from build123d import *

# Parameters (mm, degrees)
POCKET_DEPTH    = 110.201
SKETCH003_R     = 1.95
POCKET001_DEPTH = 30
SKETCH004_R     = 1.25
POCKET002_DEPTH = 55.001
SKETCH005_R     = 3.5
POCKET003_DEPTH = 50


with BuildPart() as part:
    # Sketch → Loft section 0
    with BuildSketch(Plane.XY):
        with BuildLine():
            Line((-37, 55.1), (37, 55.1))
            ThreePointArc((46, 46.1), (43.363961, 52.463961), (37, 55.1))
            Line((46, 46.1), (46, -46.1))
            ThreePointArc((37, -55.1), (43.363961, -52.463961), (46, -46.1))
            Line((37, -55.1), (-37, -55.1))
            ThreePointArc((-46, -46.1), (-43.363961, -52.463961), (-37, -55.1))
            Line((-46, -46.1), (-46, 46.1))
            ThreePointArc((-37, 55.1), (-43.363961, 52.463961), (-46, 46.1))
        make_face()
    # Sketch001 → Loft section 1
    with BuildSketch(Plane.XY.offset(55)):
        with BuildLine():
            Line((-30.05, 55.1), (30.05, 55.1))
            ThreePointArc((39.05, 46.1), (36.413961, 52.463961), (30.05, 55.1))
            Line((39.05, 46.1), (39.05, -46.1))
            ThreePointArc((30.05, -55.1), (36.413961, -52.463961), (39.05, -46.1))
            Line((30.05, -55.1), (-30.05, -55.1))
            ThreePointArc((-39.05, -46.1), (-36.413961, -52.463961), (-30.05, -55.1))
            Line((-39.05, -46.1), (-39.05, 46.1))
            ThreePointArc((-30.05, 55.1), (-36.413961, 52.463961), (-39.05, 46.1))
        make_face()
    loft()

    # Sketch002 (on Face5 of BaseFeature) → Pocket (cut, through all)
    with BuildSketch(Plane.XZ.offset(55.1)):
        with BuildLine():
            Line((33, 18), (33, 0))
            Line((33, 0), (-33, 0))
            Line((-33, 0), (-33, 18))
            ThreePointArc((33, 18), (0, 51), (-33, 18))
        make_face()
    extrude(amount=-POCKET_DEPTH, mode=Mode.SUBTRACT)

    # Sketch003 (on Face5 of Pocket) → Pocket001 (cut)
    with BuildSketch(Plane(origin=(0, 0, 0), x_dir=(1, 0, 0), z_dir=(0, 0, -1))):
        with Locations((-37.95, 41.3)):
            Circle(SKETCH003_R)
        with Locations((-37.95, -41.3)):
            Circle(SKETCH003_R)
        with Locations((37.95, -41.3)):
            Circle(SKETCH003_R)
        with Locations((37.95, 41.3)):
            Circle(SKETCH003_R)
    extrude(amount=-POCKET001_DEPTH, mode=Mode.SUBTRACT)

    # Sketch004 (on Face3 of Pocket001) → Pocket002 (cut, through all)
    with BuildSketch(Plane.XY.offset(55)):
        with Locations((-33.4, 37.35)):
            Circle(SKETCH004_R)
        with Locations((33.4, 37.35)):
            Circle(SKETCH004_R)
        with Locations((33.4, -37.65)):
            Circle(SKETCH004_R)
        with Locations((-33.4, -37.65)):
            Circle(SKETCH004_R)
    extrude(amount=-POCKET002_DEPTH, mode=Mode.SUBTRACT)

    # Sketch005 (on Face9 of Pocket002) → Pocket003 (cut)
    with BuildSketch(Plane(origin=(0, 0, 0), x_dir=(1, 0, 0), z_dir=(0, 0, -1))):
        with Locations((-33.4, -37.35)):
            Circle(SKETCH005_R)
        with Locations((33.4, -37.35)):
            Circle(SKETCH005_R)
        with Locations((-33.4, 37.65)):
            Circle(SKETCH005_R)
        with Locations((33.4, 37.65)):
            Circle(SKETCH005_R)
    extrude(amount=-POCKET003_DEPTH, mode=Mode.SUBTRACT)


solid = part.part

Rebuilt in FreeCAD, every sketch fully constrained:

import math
import FreeCAD as App
import Part
import Sketcher
from FreeCAD import Vector
Q = App.Units.Quantity

doc = App.newDocument("Part")
body = doc.addObject("PartDesign::Body", "Body")

sketch1 = body.newObject("Sketcher::SketchObject", "Sketch")
sketch1.AttachmentSupport = (doc.getObject("XY_Plane"), [""])
sketch1.MapMode = "FlatFace"
sketch1.addGeometry(Part.LineSegment(Vector(37, 55, 0), Vector(-37, 55, 0)), False)
sketch1.addGeometry(Part.ArcOfCircle(Part.Circle(Vector(-37, 46, 0), Vector(0, 0, 1), 9), math.radians(90), math.radians(180)), False)
sketch1.addGeometry(Part.LineSegment(Vector(-46, 46, 0), Vector(-46, -46, 0)), False)
sketch1.addGeometry(Part.ArcOfCircle(Part.Circle(Vector(-37, -46, 0), Vector(0, 0, 1), 9), math.radians(-180), math.radians(-90)), False)
sketch1.addGeometry(Part.LineSegment(Vector(-37, -55, 0), Vector(37, -55, 0)), False)
sketch1.addGeometry(Part.ArcOfCircle(Part.Circle(Vector(37, -46, 0), Vector(0, 0, 1), 9), math.radians(-90), math.radians(0)), False)
sketch1.addGeometry(Part.LineSegment(Vector(46, -46, 0), Vector(46, 46, 0)), False)
sketch1.addGeometry(Part.ArcOfCircle(Part.Circle(Vector(37, 46, 0), Vector(0, 0, 1), 9), math.radians(0), math.radians(90)), False)
sketch1.addConstraint(Sketcher.Constraint("Tangent", 0, 2, 1, 1))
sketch1.addConstraint(Sketcher.Constraint("Tangent", 1, 2, 2, 1))
sketch1.addConstraint(Sketcher.Constraint("Tangent", 2, 2, 3, 1))
sketch1.addConstraint(Sketcher.Constraint("Tangent", 3, 2, 4, 1))
sketch1.addConstraint(Sketcher.Constraint("Tangent", 4, 2, 5, 1))
sketch1.addConstraint(Sketcher.Constraint("Tangent", 5, 2, 6, 1))
sketch1.addConstraint(Sketcher.Constraint("Tangent", 6, 2, 7, 1))
sketch1.addConstraint(Sketcher.Constraint("Tangent", 7, 2, 0, 1))
sketch1.addConstraint(Sketcher.Constraint("Horizontal", 0))
sketch1.addConstraint(Sketcher.Constraint("Vertical", 2))
sketch1.addConstraint(Sketcher.Constraint("Horizontal", 4))
sketch1.addConstraint(Sketcher.Constraint("Vertical", 6))
sketch1.addConstraint(Sketcher.Constraint("Equal", 1, 3))
sketch1.addConstraint(Sketcher.Constraint("Equal", 3, 5))
sketch1.addConstraint(Sketcher.Constraint("Equal", 5, 7))
sketch1.addConstraint(Sketcher.Constraint("Symmetric", 1, 3, 5, 3, -1, 1))
sketch1.addConstraint(Sketcher.Constraint("Radius", 1, Q("9 mm")))
sketch1.addConstraint(Sketcher.Constraint("DistanceX", 0, 2, 0, 1, Q("74 mm")))
sketch1.addConstraint(Sketcher.Constraint("DistanceY", 2, 2, 2, 1, Q("92.2 mm")))

sketch2 = body.newObject("Sketcher::SketchObject", "Sketch001")
sketch2.AttachmentSupport = (doc.getObject("XY_Plane"), [""])
sketch2.MapMode = "FlatFace"
sketch2.AttachmentOffset = App.Placement(Vector(0, 0, 55), App.Rotation())
sketch2.addGeometry(Part.LineSegment(Vector(30, 55, 0), Vector(-30, 55, 0)), False)
sketch2.addGeometry(Part.ArcOfCircle(Part.Circle(Vector(-30, 46, 0), Vector(0, 0, 1), 9), math.radians(90), math.radians(180)), False)
sketch2.addGeometry(Part.LineSegment(Vector(-39, 46, 0), Vector(-39, -46, 0)), False)
sketch2.addGeometry(Part.ArcOfCircle(Part.Circle(Vector(-30, -46, 0), Vector(0, 0, 1), 9), math.radians(-180), math.radians(-90)), False)
sketch2.addGeometry(Part.LineSegment(Vector(-30, -55, 0), Vector(30, -55, 0)), False)
sketch2.addGeometry(Part.ArcOfCircle(Part.Circle(Vector(30, -46, 0), Vector(0, 0, 1), 9), math.radians(-90), math.radians(0)), False)
sketch2.addGeometry(Part.LineSegment(Vector(39, -46, 0), Vector(39, 46, 0)), False)
sketch2.addGeometry(Part.ArcOfCircle(Part.Circle(Vector(30, 46, 0), Vector(0, 0, 1), 9), math.radians(0), math.radians(90)), False)
sketch2.addConstraint(Sketcher.Constraint("Tangent", 0, 2, 1, 1))
sketch2.addConstraint(Sketcher.Constraint("Tangent", 1, 2, 2, 1))
sketch2.addConstraint(Sketcher.Constraint("Tangent", 2, 2, 3, 1))
sketch2.addConstraint(Sketcher.Constraint("Tangent", 3, 2, 4, 1))
sketch2.addConstraint(Sketcher.Constraint("Tangent", 4, 2, 5, 1))
sketch2.addConstraint(Sketcher.Constraint("Tangent", 5, 2, 6, 1))
sketch2.addConstraint(Sketcher.Constraint("Tangent", 6, 2, 7, 1))
sketch2.addConstraint(Sketcher.Constraint("Tangent", 7, 2, 0, 1))
sketch2.addConstraint(Sketcher.Constraint("Horizontal", 0))
sketch2.addConstraint(Sketcher.Constraint("Vertical", 2))
sketch2.addConstraint(Sketcher.Constraint("Horizontal", 4))
sketch2.addConstraint(Sketcher.Constraint("Vertical", 6))
sketch2.addConstraint(Sketcher.Constraint("Equal", 1, 3))
sketch2.addConstraint(Sketcher.Constraint("Equal", 3, 5))
sketch2.addConstraint(Sketcher.Constraint("Equal", 5, 7))
sketch2.addConstraint(Sketcher.Constraint("Symmetric", 1, 3, 5, 3, -1, 1))
sketch2.addConstraint(Sketcher.Constraint("Radius", 1, Q("9 mm")))
sketch2.addConstraint(Sketcher.Constraint("DistanceX", 0, 2, 0, 1, Q("60.1 mm")))
sketch2.addConstraint(Sketcher.Constraint("DistanceY", 2, 2, 2, 1, Q("92.2 mm")))

additiveloft = body.newObject("PartDesign::AdditiveLoft", "AdditiveLoft")
additiveloft.Profile = sketch1
additiveloft.Sections = [sketch2]

sketch3 = body.newObject("Sketcher::SketchObject", "Sketch002")
sketch3.AttachmentSupport = (doc.getObject("XZ_Plane"), [""])
sketch3.MapMode = "FlatFace"
sketch3.AttachmentOffset = App.Placement(Vector(0, 0, 55.1), App.Rotation())
sketch3.addGeometry(Part.LineSegment(Vector(33, 0, 0), Vector(33, 18, 0)), False)
sketch3.addGeometry(Part.ArcOfCircle(Part.Circle(Vector(0, 18, 0), Vector(0, 0, 1), 33), math.radians(0), math.radians(180)), False)
sketch3.addGeometry(Part.LineSegment(Vector(-33, 18, 0), Vector(-33, 0, 0)), False)
sketch3.addGeometry(Part.LineSegment(Vector(-33, 0, 0), Vector(33, 0, 0)), False)
sketch3.addConstraint(Sketcher.Constraint("Tangent", 0, 2, 1, 1))
sketch3.addConstraint(Sketcher.Constraint("Tangent", 1, 2, 2, 1))
sketch3.addConstraint(Sketcher.Constraint("Coincident", 2, 2, 3, 1))
sketch3.addConstraint(Sketcher.Constraint("Coincident", 3, 2, 0, 1))
sketch3.addConstraint(Sketcher.Constraint("Vertical", 0))
sketch3.addConstraint(Sketcher.Constraint("Vertical", 2))
sketch3.addConstraint(Sketcher.Constraint("Horizontal", 3))
sketch3.addConstraint(Sketcher.Constraint("Symmetric", 2, 2, 3, 2, -1, 1))
sketch3.addConstraint(Sketcher.Constraint("Radius", 1, Q("33 mm")))
sketch3.addConstraint(Sketcher.Constraint("DistanceY", 0, 1, 0, 2, Q("18 mm")))
pocket1 = body.newObject("PartDesign::Pocket", "Pocket")
pocket1.Profile = sketch3
pocket1.Type = "ThroughAll"

sketch4 = body.newObject("Sketcher::SketchObject", "Sketch003")
sketch4.AttachmentSupport = (doc.getObject("XY_Plane"), [""])
sketch4.MapMode = "FlatFace"
sketch4.addGeometry(Part.Circle(Vector(-38, -41.3, 0), Vector(0, 0, 1), 1.9), False)
sketch4.addGeometry(Part.Circle(Vector(-38, 41.3, 0), Vector(0, 0, 1), 1.9), False)
sketch4.addGeometry(Part.Circle(Vector(38, 41.3, 0), Vector(0, 0, 1), 1.9), False)
sketch4.addGeometry(Part.Circle(Vector(38, -41.3, 0), Vector(0, 0, 1), 1.9), False)
sketch4.addConstraint(Sketcher.Constraint("Equal", 0, 1))
sketch4.addConstraint(Sketcher.Constraint("Equal", 1, 2))
sketch4.addConstraint(Sketcher.Constraint("Equal", 2, 3))
sketch4.addConstraint(Sketcher.Constraint("Symmetric", 0, 3, 2, 3, -1, 1))
sketch4.addConstraint(Sketcher.Constraint("Symmetric", 1, 3, 3, 3, -1, 1))
sketch4.addConstraint(Sketcher.Constraint("Symmetric", 1, 3, 2, 3, -2))
sketch4.addConstraint(Sketcher.Constraint("Diameter", 0, Q("3.9 mm")))
sketch4.addConstraint(Sketcher.Constraint("DistanceY", 0, 3, -1, 1, Q("41.3 mm")))
sketch4.addConstraint(Sketcher.Constraint("DistanceX", 1, 3, 2, 3, Q("75.9 mm")))
pocket2 = body.newObject("PartDesign::Pocket", "Pocket001")
pocket2.Profile = sketch4
pocket2.Length = 30
pocket2.Reversed = True

sketch5 = body.newObject("Sketcher::SketchObject", "Sketch004")
sketch5.AttachmentSupport = (doc.getObject("XY_Plane"), [""])
sketch5.MapMode = "FlatFace"
sketch5.AttachmentOffset = App.Placement(Vector(0, 0, 55), App.Rotation())
sketch5.addGeometry(Part.Circle(Vector(-33.4, 37.4, 0), Vector(0, 0, 1), 1.2), False)
sketch5.addGeometry(Part.Circle(Vector(33.4, 37.4, 0), Vector(0, 0, 1), 1.2), False)
sketch5.addGeometry(Part.Circle(Vector(33.4, -37.6, 0), Vector(0, 0, 1), 1.2), False)
sketch5.addGeometry(Part.Circle(Vector(-33.4, -37.6, 0), Vector(0, 0, 1), 1.2), False)
sketch5.addConstraint(Sketcher.Constraint("Equal", 0, 1))
sketch5.addConstraint(Sketcher.Constraint("Equal", 1, 2))
sketch5.addConstraint(Sketcher.Constraint("Equal", 2, 3))
sketch5.addConstraint(Sketcher.Constraint("Symmetric", 0, 3, 1, 3, -2))
sketch5.addConstraint(Sketcher.Constraint("Symmetric", 2, 3, 3, 3, -2))
sketch5.addConstraint(Sketcher.Constraint("Vertical", 1, 3, 2, 3))
sketch5.addConstraint(Sketcher.Constraint("Diameter", 0, Q("2.5 mm")))
sketch5.addConstraint(Sketcher.Constraint("DistanceY", 2, 3, 1, 3, Q("75 mm")))
sketch5.addConstraint(Sketcher.Constraint("DistanceX", 0, 3, -1, 1, Q("33.4 mm")))
sketch5.addConstraint(Sketcher.Constraint("DistanceY", -1, 1, 0, 3, Q("37.35 mm")))
pocket3 = body.newObject("PartDesign::Pocket", "Pocket002")
pocket3.Profile = sketch5
pocket3.Type = "ThroughAll"

sketch6 = body.newObject("Sketcher::SketchObject", "Sketch005")
sketch6.AttachmentSupport = (doc.getObject("XY_Plane"), [""])
sketch6.MapMode = "FlatFace"
sketch6.addGeometry(Part.Circle(Vector(-33.4, 37.4, 0), Vector(0, 0, 1), 3.5), False)
sketch6.addGeometry(Part.Circle(Vector(33.4, 37.4, 0), Vector(0, 0, 1), 3.5), False)
sketch6.addGeometry(Part.Circle(Vector(-33.4, -37.6, 0), Vector(0, 0, 1), 3.5), False)
sketch6.addGeometry(Part.Circle(Vector(33.4, -37.6, 0), Vector(0, 0, 1), 3.5), False)
sketch6.addConstraint(Sketcher.Constraint("Equal", 0, 1))
sketch6.addConstraint(Sketcher.Constraint("Equal", 1, 2))
sketch6.addConstraint(Sketcher.Constraint("Equal", 2, 3))
sketch6.addConstraint(Sketcher.Constraint("Symmetric", 0, 3, 1, 3, -2))
sketch6.addConstraint(Sketcher.Constraint("Symmetric", 2, 3, 3, 3, -2))
sketch6.addConstraint(Sketcher.Constraint("Vertical", 0, 3, 2, 3))
sketch6.addConstraint(Sketcher.Constraint("Diameter", 0, Q("7 mm")))
sketch6.addConstraint(Sketcher.Constraint("DistanceY", 2, 3, 0, 3, Q("75 mm")))
sketch6.addConstraint(Sketcher.Constraint("DistanceX", 0, 3, -1, 1, Q("33.4 mm")))
sketch6.addConstraint(Sketcher.Constraint("DistanceY", -1, 1, 0, 3, Q("37.35 mm")))
pocket4 = body.newObject("PartDesign::Pocket", "Pocket003")
pocket4.Profile = sketch6
pocket4.Length = 50
pocket4.Reversed = True

doc.recompute()
